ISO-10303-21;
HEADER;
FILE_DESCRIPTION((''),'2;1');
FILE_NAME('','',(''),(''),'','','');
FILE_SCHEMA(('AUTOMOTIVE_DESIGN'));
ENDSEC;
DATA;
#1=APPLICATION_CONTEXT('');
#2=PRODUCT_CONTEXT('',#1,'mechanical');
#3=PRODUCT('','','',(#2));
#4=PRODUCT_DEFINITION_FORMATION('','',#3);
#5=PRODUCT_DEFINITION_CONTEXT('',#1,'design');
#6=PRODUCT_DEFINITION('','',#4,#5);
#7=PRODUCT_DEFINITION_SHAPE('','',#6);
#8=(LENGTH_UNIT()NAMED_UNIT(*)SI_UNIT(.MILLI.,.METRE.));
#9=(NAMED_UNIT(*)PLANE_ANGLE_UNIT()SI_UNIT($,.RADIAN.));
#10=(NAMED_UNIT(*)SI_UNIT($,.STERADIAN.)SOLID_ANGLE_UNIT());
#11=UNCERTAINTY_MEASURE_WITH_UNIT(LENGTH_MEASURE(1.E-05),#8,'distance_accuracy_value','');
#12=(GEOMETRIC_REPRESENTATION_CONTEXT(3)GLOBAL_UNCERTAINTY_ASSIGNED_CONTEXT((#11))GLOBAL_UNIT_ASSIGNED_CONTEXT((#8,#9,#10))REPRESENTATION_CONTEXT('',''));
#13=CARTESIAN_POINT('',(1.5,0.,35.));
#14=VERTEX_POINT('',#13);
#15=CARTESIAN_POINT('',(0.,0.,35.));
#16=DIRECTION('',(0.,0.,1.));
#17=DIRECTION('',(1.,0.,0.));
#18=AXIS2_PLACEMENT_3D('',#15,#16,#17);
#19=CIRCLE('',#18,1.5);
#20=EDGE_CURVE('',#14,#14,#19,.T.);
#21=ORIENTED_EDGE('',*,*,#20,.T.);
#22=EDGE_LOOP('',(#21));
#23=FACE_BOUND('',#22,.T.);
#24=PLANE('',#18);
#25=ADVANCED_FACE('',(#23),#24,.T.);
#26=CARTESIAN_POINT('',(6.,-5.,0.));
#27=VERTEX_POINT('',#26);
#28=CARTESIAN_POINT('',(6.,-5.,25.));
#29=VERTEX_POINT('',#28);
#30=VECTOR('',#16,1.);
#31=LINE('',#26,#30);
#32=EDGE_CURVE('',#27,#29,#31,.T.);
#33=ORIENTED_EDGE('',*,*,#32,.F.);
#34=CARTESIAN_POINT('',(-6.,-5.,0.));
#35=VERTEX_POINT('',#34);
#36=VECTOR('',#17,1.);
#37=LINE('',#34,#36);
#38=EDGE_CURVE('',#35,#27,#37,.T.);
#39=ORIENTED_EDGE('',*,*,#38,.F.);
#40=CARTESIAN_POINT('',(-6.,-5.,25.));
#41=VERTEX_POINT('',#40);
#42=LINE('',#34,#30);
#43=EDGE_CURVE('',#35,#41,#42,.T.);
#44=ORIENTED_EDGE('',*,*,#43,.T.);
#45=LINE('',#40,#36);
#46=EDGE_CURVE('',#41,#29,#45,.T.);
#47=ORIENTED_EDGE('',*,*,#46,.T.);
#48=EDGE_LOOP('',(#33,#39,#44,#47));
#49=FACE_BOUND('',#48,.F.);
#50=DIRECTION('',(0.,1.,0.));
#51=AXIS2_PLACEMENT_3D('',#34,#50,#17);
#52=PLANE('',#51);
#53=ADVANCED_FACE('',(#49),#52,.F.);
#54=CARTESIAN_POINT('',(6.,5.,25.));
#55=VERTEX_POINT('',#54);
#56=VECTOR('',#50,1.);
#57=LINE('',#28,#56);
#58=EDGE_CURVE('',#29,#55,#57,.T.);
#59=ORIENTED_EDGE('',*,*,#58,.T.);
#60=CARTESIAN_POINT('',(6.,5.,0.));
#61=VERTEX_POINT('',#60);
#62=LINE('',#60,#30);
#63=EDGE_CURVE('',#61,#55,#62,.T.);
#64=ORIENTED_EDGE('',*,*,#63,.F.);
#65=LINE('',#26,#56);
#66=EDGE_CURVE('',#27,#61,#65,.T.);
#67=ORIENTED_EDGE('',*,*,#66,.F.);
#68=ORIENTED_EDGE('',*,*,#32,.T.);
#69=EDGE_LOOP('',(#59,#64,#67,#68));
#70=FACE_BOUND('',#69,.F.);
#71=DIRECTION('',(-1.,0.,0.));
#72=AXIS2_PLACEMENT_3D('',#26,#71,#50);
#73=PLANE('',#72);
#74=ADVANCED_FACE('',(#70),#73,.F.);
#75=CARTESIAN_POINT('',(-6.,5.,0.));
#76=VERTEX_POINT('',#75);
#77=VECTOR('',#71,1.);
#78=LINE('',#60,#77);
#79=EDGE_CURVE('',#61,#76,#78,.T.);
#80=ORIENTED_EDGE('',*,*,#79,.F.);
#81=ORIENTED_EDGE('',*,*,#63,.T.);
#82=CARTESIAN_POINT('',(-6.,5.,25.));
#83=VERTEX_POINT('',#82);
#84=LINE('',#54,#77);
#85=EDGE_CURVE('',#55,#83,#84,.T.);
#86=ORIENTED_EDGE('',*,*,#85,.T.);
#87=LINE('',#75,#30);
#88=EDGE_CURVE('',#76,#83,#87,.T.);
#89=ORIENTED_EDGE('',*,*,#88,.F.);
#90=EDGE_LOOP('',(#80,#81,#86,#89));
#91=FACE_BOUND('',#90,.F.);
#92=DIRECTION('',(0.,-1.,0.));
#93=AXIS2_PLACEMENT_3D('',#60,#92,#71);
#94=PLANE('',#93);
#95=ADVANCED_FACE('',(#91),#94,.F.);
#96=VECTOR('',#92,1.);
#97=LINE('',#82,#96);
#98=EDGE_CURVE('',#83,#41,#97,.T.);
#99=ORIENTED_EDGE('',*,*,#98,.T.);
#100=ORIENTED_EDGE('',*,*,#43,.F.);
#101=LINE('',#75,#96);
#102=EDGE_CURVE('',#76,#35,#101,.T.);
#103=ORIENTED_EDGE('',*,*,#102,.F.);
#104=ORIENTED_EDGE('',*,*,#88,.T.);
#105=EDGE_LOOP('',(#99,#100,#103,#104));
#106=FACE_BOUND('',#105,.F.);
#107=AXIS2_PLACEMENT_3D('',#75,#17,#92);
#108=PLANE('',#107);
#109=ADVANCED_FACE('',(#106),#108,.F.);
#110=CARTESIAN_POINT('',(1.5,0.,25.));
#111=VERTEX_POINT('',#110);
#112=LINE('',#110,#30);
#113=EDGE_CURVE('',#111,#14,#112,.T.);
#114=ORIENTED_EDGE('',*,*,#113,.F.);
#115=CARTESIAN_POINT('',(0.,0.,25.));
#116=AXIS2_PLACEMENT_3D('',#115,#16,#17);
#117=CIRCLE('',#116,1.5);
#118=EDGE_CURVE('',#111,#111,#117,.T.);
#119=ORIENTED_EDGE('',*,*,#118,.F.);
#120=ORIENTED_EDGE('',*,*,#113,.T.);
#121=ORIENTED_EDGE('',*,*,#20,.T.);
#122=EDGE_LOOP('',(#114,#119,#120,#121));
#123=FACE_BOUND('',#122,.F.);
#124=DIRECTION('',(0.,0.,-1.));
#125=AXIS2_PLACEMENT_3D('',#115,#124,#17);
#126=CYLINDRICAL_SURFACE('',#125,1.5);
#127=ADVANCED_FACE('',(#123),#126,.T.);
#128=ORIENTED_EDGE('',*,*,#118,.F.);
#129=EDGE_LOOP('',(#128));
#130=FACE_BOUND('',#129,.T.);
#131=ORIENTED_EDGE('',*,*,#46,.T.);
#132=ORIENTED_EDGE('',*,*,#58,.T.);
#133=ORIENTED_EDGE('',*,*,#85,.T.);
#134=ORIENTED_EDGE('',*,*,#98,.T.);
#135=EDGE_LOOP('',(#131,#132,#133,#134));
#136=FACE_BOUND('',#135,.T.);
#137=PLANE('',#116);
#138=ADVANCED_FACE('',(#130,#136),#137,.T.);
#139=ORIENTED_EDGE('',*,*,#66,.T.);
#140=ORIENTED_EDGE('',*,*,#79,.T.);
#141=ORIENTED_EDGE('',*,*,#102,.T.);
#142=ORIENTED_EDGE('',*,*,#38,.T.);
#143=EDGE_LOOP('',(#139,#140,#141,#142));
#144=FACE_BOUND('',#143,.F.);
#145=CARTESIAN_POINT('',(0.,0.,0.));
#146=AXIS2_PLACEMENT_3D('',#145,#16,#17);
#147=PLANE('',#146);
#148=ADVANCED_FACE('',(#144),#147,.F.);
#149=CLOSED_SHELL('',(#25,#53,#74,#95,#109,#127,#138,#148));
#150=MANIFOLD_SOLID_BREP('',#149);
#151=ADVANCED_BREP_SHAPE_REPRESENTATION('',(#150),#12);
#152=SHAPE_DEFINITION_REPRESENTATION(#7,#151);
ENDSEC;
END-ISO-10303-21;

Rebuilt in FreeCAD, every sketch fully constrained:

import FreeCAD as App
import Part
import Sketcher
Q = App.Units.Quantity

doc = App.newDocument("Part")
body = doc.addObject("PartDesign::Body", "Body")

# Sketch on XY plane
sketch1 = body.newObject("Sketcher::SketchObject", "Sketch")
sketch1.AttachmentSupport = (doc.getObject("XY_Plane"), [""])
sketch1.MapMode = "FlatFace"
sketch1.addGeometry(Part.LineSegment(App.Vector(-6, 5, 0), App.Vector(-6, -5, 0)), False)
sketch1.addGeometry(Part.LineSegment(App.Vector(-6, -5, 0), App.Vector(6, -5, 0)), False)
sketch1.addGeometry(Part.LineSegment(App.Vector(6, -5, 0), App.Vector(6, 5, 0)), False)
sketch1.addGeometry(Part.LineSegment(App.Vector(6, 5, 0), App.Vector(-6, 5, 0)), False)
sketch1.addConstraint(Sketcher.Constraint("Coincident", 0, 2, 1, 1))
sketch1.addConstraint(Sketcher.Constraint("Coincident", 1, 2, 2, 1))
sketch1.addConstraint(Sketcher.Constraint("Coincident", 2, 2, 3, 1))
sketch1.addConstraint(Sketcher.Constraint("Coincident", 3, 2, 0, 1))
sketch1.addConstraint(Sketcher.Constraint("Vertical", 0))
sketch1.addConstraint(Sketcher.Constraint("Horizontal", 1))
sketch1.addConstraint(Sketcher.Constraint("Vertical", 2))
sketch1.addConstraint(Sketcher.Constraint("Horizontal", 3))
sketch1.addConstraint(Sketcher.Constraint("Symmetric", 0, 2, 2, 2, -1, 1))
sketch1.addConstraint(Sketcher.Constraint("DistanceX", 1, 1, 1, 2, Q("12 mm")))
sketch1.addConstraint(Sketcher.Constraint("DistanceY", 0, 2, 0, 1, Q("10 mm")))
pad1 = body.newObject("PartDesign::Pad", "Pad")
pad1.Profile = sketch1
pad1.Length = 25

# Sketch on XY plane
sketch2 = body.newObject("Sketcher::SketchObject", "Sketch001")
sketch2.AttachmentSupport = (doc.getObject("XY_Plane"), [""])
sketch2.MapMode = "FlatFace"
sketch2.AttachmentOffset = App.Placement(App.Vector(0, 0, 25), App.Rotation())
sketch2.addGeometry(Part.Circle(App.Vector(0, 0, 0), App.Vector(0, 0, 1), 1.5), False)
sketch2.addConstraint(Sketcher.Constraint("Coincident", 0, 3, -1, 1))
sketch2.addConstraint(Sketcher.Constraint("Diameter", 0, Q("3 mm")))
pad2 = body.newObject("PartDesign::Pad", "Pad001")
pad2.Profile = sketch2
pad2.Length = 10

doc.recompute()
